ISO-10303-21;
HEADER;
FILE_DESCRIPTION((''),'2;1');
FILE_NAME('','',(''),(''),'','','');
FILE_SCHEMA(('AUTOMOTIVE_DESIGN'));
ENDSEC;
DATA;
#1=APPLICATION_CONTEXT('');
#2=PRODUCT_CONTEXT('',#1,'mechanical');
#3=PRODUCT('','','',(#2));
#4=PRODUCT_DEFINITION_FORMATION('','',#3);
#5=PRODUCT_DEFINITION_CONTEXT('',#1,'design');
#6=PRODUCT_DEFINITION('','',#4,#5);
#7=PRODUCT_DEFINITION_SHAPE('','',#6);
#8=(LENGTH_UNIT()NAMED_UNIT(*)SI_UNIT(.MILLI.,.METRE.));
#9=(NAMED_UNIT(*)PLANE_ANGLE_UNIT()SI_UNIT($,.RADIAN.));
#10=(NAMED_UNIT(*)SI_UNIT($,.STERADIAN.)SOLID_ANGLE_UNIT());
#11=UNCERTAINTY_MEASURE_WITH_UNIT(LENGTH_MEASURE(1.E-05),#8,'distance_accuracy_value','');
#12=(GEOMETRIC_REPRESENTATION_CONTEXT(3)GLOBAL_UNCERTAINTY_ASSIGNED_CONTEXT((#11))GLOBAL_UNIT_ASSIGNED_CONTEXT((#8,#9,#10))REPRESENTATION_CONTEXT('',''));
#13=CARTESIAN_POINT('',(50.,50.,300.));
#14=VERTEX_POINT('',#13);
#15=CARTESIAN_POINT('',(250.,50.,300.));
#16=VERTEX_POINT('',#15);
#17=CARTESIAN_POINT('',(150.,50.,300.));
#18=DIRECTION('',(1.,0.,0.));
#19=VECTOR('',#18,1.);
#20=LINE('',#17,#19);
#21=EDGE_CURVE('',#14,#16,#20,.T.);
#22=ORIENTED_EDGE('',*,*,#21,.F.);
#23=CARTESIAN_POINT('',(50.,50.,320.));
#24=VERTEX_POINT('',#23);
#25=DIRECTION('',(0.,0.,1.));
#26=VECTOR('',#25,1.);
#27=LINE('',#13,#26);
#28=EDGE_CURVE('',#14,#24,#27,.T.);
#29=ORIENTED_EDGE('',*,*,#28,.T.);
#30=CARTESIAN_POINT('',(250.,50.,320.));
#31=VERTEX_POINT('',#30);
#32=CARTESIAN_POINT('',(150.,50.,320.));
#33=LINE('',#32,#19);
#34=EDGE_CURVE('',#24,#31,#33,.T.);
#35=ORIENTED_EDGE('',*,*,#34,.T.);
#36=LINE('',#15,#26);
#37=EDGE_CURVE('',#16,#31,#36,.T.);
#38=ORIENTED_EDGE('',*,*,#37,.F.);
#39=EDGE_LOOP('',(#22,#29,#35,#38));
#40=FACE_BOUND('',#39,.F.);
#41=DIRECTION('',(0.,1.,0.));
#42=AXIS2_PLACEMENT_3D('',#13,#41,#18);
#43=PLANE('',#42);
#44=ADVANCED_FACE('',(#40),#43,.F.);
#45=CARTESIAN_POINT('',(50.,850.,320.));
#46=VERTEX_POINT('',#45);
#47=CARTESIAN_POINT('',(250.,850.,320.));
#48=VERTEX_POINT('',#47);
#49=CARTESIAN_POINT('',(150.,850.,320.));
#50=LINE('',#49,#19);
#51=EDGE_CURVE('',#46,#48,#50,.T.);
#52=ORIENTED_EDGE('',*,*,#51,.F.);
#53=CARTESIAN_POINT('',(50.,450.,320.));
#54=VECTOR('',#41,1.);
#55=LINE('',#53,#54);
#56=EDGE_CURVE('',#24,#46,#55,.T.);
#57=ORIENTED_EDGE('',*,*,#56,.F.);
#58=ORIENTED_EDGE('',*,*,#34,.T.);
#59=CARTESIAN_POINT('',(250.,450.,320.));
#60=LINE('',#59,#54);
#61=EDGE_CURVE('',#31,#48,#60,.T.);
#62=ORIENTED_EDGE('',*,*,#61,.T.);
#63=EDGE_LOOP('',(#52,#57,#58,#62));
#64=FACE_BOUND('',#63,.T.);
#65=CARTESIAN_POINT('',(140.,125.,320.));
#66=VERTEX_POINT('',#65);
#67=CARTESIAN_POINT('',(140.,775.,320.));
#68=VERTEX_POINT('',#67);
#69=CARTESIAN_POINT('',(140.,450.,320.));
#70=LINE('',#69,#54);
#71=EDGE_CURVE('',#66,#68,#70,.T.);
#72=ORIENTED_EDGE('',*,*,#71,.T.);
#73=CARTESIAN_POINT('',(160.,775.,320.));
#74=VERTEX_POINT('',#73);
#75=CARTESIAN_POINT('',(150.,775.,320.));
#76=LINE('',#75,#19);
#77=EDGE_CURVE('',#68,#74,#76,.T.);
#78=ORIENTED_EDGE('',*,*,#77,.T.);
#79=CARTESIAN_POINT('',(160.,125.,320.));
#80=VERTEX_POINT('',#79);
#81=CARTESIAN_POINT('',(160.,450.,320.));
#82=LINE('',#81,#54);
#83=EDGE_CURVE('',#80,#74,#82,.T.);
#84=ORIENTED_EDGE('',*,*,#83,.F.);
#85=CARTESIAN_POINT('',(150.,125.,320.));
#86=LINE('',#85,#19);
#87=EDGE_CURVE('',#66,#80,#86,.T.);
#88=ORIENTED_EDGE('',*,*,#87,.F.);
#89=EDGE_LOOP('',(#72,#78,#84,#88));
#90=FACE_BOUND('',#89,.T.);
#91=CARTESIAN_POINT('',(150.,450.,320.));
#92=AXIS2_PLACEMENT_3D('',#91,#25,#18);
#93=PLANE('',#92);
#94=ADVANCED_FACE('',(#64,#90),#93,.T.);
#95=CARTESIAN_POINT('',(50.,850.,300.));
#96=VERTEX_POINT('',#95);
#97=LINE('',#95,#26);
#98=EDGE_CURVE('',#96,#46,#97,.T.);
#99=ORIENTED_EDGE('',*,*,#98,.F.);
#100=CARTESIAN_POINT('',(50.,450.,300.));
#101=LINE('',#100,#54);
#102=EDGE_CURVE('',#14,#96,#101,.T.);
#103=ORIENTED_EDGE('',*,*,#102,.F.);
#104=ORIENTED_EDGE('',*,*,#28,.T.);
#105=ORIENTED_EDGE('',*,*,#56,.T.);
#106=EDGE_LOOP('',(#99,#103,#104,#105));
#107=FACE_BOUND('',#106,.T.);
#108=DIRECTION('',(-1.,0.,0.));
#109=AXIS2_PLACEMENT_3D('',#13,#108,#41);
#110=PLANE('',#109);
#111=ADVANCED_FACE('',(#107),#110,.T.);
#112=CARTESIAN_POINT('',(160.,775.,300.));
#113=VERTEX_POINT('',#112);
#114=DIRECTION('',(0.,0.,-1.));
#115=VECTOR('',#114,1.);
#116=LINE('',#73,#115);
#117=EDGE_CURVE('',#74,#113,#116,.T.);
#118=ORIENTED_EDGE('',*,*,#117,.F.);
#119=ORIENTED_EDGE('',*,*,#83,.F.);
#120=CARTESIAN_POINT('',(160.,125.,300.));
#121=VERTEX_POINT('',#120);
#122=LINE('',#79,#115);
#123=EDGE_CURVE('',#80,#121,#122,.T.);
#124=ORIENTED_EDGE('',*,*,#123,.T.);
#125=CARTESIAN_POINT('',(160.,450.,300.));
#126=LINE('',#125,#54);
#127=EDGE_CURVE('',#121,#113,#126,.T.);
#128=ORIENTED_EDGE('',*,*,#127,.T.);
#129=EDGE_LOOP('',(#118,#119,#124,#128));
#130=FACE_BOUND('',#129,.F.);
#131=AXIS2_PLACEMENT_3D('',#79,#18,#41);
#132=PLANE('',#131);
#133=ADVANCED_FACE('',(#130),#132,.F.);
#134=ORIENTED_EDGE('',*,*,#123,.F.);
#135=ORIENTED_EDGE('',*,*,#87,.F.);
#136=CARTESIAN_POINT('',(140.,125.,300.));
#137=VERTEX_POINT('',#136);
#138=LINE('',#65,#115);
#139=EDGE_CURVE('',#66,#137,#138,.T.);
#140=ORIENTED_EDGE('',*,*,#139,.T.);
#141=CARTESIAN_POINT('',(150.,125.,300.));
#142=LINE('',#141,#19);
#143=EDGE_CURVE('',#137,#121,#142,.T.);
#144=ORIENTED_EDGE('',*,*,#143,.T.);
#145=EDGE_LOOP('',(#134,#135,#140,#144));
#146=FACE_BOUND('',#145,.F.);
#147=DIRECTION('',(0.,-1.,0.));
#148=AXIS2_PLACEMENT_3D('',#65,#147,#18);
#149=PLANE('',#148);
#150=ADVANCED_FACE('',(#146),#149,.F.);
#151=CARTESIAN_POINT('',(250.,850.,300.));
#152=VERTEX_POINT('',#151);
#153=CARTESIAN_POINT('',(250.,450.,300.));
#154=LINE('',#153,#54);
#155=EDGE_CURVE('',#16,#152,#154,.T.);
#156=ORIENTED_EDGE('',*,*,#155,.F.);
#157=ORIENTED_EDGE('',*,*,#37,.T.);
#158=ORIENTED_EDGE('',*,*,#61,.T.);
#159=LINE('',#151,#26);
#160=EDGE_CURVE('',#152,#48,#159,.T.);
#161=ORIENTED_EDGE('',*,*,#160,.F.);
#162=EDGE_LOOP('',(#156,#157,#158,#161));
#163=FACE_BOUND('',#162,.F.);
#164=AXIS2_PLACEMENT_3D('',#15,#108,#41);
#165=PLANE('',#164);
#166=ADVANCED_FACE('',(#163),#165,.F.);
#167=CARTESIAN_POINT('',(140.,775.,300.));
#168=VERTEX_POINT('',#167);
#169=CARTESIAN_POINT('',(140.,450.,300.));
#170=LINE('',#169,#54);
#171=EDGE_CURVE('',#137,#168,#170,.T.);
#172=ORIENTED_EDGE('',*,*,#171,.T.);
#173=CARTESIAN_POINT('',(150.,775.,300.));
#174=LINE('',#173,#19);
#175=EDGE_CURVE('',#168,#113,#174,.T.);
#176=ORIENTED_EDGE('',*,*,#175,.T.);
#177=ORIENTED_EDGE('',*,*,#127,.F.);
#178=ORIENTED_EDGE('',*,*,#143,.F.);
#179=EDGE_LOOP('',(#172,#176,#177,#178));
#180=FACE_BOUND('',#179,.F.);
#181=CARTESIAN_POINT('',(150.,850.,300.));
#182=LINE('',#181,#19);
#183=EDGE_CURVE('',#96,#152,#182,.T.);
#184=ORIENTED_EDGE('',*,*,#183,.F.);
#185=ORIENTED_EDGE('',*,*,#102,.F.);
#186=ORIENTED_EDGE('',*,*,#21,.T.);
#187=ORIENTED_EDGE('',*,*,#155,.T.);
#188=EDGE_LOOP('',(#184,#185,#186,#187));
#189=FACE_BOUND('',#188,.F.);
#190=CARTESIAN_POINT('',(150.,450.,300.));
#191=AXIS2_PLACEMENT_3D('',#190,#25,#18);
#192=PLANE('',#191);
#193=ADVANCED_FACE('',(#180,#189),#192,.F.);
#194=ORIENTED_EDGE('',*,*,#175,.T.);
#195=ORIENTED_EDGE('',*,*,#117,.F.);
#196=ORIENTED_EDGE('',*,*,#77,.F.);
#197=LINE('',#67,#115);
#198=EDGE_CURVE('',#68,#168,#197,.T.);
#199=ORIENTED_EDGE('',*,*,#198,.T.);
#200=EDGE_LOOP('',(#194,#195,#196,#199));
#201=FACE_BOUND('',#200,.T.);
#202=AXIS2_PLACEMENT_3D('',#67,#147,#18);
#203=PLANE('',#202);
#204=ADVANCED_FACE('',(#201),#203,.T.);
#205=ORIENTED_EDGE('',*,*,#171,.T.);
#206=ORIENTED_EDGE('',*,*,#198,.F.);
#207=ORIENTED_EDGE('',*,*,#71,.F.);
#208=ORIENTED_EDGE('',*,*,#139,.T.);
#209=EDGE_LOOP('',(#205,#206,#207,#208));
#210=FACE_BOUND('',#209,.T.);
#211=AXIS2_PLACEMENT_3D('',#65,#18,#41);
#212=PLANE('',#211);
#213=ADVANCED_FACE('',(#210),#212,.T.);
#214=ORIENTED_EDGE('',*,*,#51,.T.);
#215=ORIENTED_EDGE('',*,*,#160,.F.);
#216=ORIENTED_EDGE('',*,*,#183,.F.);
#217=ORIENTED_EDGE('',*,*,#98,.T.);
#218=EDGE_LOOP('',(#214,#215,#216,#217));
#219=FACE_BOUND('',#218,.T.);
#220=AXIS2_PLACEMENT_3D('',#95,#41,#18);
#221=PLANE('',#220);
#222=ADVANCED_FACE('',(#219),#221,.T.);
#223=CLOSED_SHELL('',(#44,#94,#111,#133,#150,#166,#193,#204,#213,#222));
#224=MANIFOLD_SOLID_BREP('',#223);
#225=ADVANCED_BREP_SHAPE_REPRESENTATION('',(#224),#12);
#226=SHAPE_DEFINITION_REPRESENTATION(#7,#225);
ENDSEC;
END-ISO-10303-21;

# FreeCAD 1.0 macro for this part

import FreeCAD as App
import Part
import Sketcher
from FreeCAD import Vector


def add_polygon(sketch, points):
    """Adds a closed chain of lines whose ends are joined by coincident constraints."""
    first, n = sketch.GeometryCount, len(points)
    for a, b in zip(points, points[1:] + points[:1]):
        sketch.addGeometry(Part.LineSegment(App.Vector(*a, 0), App.Vector(*b, 0)), False)
    for i in range(n):
        sketch.addConstraint(Sketcher.Constraint("Coincident", first + i, 2, first + (i + 1) % n, 1))

doc = App.newDocument("Part")
params = doc.addObject("Spreadsheet::Sheet", "Params")
for row, (alias, value) in enumerate([
    ("sketch1_width", "20 mm"),
    ("sketch1_height", "650 mm"),
    ("pad1_length", "20 mm"),
    ("sketch2_width", "200 mm"),
    ("sketch2_height", "800 mm"),
    ("pad2_length", "20 mm"),
], start=1):
    params.set(f"A{row}", alias)
    params.set(f"B{row}", "=" + value)
    params.setAlias(f"B{row}", alias)

body = doc.addObject("PartDesign::Body", "Body")

# Sketch on XY plane
sketch1 = body.newObject("Sketcher::SketchObject", "Sketch")
sketch1.AttachmentSupport = (doc.getObject("XY_Plane"), [""])
sketch1.MapMode = "FlatFace"
sketch1.AttachmentOffset = App.Placement(Vector(0, 0, 420), App.Rotation())
add_polygon(sketch1, [(290, 925), (290, 275), (310, 275), (310, 925)])  # lines 0-3
sketch1.addConstraint(Sketcher.Constraint("Vertical", 0))
sketch1.addConstraint(Sketcher.Constraint("Horizontal", 1))
sketch1.addConstraint(Sketcher.Constraint("Vertical", 2))
sketch1.addConstraint(Sketcher.Constraint("Horizontal", 3))
sketch1.addConstraint(Sketcher.Constraint("DistanceX", 1, 1, 1, 2, 20.0))
sketch1.addConstraint(Sketcher.Constraint("DistanceY", 0, 2, 0, 1, 650.0))
sketch1.addConstraint(Sketcher.Constraint("DistanceX", -1, 1, 0, 2, 289.620605))
sketch1.addConstraint(Sketcher.Constraint("DistanceY", -1, 1, 0, 2, 275.315636))
sketch1.setExpression("Constraints[8]", "Params.sketch1_width")
sketch1.setExpression("Constraints[9]", "Params.sketch1_height")
pad1 = body.newObject("PartDesign::Pad", "Pad")
pad1.Profile = sketch1
pad1.setExpression("Length", "Params.pad1_length")
pad1.Reversed = True
body2 = doc.addObject("PartDesign::Body", "Body001")
doc.recompute()

body.Placement = App.Placement(Vector(-149.620605, -150.315636, -100), App.Rotation(Vector(0, 0, 1), 0))
boolean = body2.newObject("PartDesign::Boolean", "Boolean")
boolean.Type = "Fuse"
boolean.addObjects([body])
body3 = doc.addObject("PartDesign::Body", "Body002")

# Sketch on XY plane
sketch2 = body3.newObject("Sketcher::SketchObject", "Sketch001")
sketch2.AttachmentSupport = (doc.getObject("XY_Plane002"), [""])
sketch2.MapMode = "FlatFace"
sketch2.AttachmentOffset = App.Placement(Vector(0, 0, 400), App.Rotation())
add_polygon(sketch2, [(208, 1006), (208, 206), (408, 206), (408, 1006)])  # lines 0-3
sketch2.addConstraint(Sketcher.Constraint("Vertical", 0))
sketch2.addConstraint(Sketcher.Constraint("Horizontal", 1))
sketch2.addConstraint(Sketcher.Constraint("Vertical", 2))
sketch2.addConstraint(Sketcher.Constraint("Horizontal", 3))
sketch2.addConstraint(Sketcher.Constraint("DistanceX", 1, 1, 1, 2, 200.0))
sketch2.addConstraint(Sketcher.Constraint("DistanceY", 0, 2, 0, 1, 800.0))
sketch2.addConstraint(Sketcher.Constraint("DistanceY", -1, 1, 0, 2, 206.495789))
sketch2.addConstraint(Sketcher.Constraint("DistanceX", -1, 1, 0, 2, 207.600586))
sketch2.setExpression("Constraints[8]", "Params.sketch2_width")
sketch2.setExpression("Constraints[9]", "Params.sketch2_height")
pad2 = body3.newObject("PartDesign::Pad", "Pad001")
pad2.Profile = sketch2
pad2.setExpression("Length", "Params.pad2_length")
body4 = doc.addObject("PartDesign::Body", "Body003")
doc.recompute()

body3.Placement = App.Placement(Vector(-157.600586, -156.495789, -100), App.Rotation(Vector(0, 0, 1), 0))
boolean2 = body4.newObject("PartDesign::Boolean", "Boolean001")
boolean2.Type = "Fuse"
boolean2.addObjects([body3])
doc.recompute()

boolean3 = body4.newObject("PartDesign::Boolean", "Boolean002")
boolean3.Type = "Cut"
boolean3.addObjects([body2])

doc.recompute()
